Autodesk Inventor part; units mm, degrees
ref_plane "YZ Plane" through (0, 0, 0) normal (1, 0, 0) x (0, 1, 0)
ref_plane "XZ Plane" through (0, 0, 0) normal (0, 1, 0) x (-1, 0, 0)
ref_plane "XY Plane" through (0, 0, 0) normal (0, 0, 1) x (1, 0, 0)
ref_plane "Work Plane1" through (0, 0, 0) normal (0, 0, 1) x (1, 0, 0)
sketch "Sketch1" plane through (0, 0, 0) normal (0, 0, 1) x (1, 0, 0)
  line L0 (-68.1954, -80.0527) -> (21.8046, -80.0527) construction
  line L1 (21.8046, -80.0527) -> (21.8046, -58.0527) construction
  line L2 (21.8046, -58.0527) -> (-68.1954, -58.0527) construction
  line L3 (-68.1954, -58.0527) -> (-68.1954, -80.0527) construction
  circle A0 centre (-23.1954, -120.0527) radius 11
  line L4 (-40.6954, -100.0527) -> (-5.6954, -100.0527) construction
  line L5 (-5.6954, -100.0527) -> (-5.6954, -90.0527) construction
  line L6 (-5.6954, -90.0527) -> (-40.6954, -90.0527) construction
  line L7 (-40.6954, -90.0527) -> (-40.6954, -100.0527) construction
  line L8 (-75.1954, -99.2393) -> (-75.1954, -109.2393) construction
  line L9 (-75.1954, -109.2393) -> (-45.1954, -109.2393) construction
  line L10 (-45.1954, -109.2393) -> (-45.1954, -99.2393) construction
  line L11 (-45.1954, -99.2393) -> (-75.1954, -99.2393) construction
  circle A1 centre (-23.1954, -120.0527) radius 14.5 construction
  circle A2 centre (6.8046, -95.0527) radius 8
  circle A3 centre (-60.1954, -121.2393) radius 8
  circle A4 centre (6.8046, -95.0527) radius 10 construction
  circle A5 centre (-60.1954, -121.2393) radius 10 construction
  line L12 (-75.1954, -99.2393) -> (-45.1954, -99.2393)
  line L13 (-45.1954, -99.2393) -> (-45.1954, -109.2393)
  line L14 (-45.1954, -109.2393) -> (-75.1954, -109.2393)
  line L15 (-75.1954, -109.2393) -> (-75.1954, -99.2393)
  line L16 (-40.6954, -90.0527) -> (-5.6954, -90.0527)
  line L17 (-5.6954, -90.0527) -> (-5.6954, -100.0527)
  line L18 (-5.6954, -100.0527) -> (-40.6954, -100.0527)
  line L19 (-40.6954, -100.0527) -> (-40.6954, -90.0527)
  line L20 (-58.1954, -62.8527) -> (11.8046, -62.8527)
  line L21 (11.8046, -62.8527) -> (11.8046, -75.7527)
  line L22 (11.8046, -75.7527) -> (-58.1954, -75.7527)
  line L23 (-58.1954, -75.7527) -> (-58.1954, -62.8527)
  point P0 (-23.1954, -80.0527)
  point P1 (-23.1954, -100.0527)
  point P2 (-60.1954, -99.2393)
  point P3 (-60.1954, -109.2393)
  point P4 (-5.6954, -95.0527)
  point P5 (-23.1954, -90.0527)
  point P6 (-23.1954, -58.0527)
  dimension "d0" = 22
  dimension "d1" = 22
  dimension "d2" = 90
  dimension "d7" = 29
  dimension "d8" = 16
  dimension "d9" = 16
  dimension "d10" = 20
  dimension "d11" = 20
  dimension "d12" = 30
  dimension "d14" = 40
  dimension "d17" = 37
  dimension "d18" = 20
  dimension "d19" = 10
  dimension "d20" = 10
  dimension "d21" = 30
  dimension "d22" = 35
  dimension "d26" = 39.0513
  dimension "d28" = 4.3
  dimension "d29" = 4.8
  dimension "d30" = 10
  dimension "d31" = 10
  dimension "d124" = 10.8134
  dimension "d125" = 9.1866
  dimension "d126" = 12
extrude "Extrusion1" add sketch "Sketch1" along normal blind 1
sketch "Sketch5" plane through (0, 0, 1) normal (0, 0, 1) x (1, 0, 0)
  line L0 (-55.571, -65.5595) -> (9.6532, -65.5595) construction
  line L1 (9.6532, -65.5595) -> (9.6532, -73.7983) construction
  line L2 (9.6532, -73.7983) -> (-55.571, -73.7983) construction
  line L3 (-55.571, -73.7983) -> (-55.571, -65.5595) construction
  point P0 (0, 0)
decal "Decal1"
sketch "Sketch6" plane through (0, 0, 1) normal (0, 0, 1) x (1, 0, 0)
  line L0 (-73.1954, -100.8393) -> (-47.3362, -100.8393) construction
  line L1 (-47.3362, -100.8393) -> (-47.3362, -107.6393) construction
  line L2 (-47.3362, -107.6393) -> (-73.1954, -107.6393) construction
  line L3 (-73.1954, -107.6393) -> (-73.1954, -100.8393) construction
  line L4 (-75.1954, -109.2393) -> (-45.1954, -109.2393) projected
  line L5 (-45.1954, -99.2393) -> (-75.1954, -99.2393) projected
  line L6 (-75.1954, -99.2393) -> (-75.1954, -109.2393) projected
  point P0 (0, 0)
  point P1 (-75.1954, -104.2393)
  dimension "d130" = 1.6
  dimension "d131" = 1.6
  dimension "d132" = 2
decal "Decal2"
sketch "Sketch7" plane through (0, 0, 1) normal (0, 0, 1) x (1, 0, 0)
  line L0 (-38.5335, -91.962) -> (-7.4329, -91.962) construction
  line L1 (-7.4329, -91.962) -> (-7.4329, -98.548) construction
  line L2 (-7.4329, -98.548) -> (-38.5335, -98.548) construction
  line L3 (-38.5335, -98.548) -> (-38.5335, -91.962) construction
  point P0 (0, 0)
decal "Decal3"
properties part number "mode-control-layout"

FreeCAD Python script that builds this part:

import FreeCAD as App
import Part
import Sketcher

V = App.Vector
Q = App.Units.Quantity


def add_polygon(sketch, points):
    """Adds a closed chain of lines whose ends are joined by coincident constraints."""
    first, n = sketch.GeometryCount, len(points)
    for a, b in zip(points, points[1:] + points[:1]):
        sketch.addGeometry(Part.LineSegment(App.Vector(*a, 0), App.Vector(*b, 0)), False)
    for i in range(n):
        sketch.addConstraint(Sketcher.Constraint("Coincident", first + i, 2, first + (i + 1) % n, 1))

doc = App.newDocument("Part")
params = doc.addObject("Spreadsheet::Sheet", "Params")
for row, (alias, value) in enumerate([
    ("sketch1_diameter", "22 mm"),
    ("sketch1_diameter2", "16 mm"),
    ("sketch1_width", "30 mm"),
    ("sketch1_width2", "35 mm"),
    ("sketch1_height", "10 mm"),
    ("pad1_length", "1 mm"),
], start=1):
    params.set(f"A{row}", alias)
    params.set(f"B{row}", "=" + value)
    params.setAlias(f"B{row}", alias)

body = doc.addObject("PartDesign::Body", "Body")
body.AllowCompound = True

# Sketch on XY plane
sketch1 = body.newObject("Sketcher::SketchObject", "Sketch")
sketch1.AttachmentSupport = (doc.getObject("XY_Plane"), [""])
sketch1.MapMode = "FlatFace"
sketch1.addGeometry(Part.Circle(V(-23, -120, 0), V(0, 0, 1), 11), False)  # 0
sketch1.addGeometry(Part.Circle(V(7, -95, 0), V(0, 0, 1), 8), False)  # 1
sketch1.addGeometry(Part.Circle(V(-60, -121, 0), V(0, 0, 1), 8), False)  # 2
add_polygon(sketch1, [(-45, -99), (-75, -99), (-75, -109), (-45, -109)])  # lines 3-6
add_polygon(sketch1, [(-6, -90), (-41, -90), (-41, -100), (-6, -100)])  # lines 7-10
add_polygon(sketch1, [(12, -63), (-58, -63), (-58, -76), (12, -76)])  # lines 11-14
sketch1.addConstraint([
    Sketcher.Constraint("Horizontal", 3),
    Sketcher.Constraint("Vertical", 4),
    Sketcher.Constraint("Horizontal", 5),
    Sketcher.Constraint("Vertical", 6),
    Sketcher.Constraint("Horizontal", 7),
    Sketcher.Constraint("Vertical", 8),
    Sketcher.Constraint("Horizontal", 9),
    Sketcher.Constraint("Vertical", 10),
    Sketcher.Constraint("Horizontal", 11),
    Sketcher.Constraint("Vertical", 12),
    Sketcher.Constraint("Horizontal", 13),
    Sketcher.Constraint("Vertical", 14),
    Sketcher.Constraint("Equal", 1, 2),
    Sketcher.Constraint("Equal", 6, 8),
    Sketcher.Constraint("Diameter", 0, Q("22 mm")),
    Sketcher.Constraint("Diameter", 1, Q("16 mm")),
    Sketcher.Constraint("DistanceX", 3, 2, 3, 1, Q("30 mm")),
    Sketcher.Constraint("DistanceX", 7, 2, 7, 1, Q("35 mm")),
    Sketcher.Constraint("DistanceY", 4, 2, 4, 1, Q("10 mm")),
    Sketcher.Constraint("DistanceX", 0, 3, 1, 3, Q("30 mm")),
    Sketcher.Constraint("DistanceX", 2, 3, 0, 3, Q("37 mm")),
    Sketcher.Constraint("DistanceY", 2, 3, 3, 2, Q("22 mm")),
    Sketcher.Constraint("DistanceX", 5, 2, 0, 3, Q("22 mm")),
    Sketcher.Constraint("DistanceY", 0, 3, 7, 2, Q("30 mm")),
    Sketcher.Constraint("DistanceX", 0, 3, 13, 2, Q("35 mm")),
    Sketcher.Constraint("DistanceX", 11, 2, 11, 1, Q("70 mm")),
    Sketcher.Constraint("DistanceY", 12, 2, 12, 1, Q("12.9 mm")),
    Sketcher.Constraint("DistanceY", 0, 3, 1, 3, Q("25 mm")),
    Sketcher.Constraint("DistanceY", 0, 3, 4, 2, Q("10.8134 mm")),
    Sketcher.Constraint("DistanceX", 6, 2, 7, 2, Q("4.5 mm")),
    Sketcher.Constraint("DistanceY", 7, 2, 11, 2, Q("27.2 mm")),
    Sketcher.Constraint("DistanceX", 0, 3, -1, 1, Q("23.1954 mm")),
    Sketcher.Constraint("DistanceY", 0, 3, -1, 1, Q("120.0527 mm")),
])
sketch1.setExpression("Constraints[26]", "Params.sketch1_diameter")
sketch1.setExpression("Constraints[27]", "Params.sketch1_diameter2")
sketch1.setExpression("Constraints[28]", "Params.sketch1_width")
sketch1.setExpression("Constraints[29]", "Params.sketch1_width2")
sketch1.setExpression("Constraints[30]", "Params.sketch1_height")
pad1 = body.newObject("PartDesign::Pad", "Pad")
pad1.Profile = sketch1
pad1.setExpression("Length", "Params.pad1_length")

doc.recompute()
